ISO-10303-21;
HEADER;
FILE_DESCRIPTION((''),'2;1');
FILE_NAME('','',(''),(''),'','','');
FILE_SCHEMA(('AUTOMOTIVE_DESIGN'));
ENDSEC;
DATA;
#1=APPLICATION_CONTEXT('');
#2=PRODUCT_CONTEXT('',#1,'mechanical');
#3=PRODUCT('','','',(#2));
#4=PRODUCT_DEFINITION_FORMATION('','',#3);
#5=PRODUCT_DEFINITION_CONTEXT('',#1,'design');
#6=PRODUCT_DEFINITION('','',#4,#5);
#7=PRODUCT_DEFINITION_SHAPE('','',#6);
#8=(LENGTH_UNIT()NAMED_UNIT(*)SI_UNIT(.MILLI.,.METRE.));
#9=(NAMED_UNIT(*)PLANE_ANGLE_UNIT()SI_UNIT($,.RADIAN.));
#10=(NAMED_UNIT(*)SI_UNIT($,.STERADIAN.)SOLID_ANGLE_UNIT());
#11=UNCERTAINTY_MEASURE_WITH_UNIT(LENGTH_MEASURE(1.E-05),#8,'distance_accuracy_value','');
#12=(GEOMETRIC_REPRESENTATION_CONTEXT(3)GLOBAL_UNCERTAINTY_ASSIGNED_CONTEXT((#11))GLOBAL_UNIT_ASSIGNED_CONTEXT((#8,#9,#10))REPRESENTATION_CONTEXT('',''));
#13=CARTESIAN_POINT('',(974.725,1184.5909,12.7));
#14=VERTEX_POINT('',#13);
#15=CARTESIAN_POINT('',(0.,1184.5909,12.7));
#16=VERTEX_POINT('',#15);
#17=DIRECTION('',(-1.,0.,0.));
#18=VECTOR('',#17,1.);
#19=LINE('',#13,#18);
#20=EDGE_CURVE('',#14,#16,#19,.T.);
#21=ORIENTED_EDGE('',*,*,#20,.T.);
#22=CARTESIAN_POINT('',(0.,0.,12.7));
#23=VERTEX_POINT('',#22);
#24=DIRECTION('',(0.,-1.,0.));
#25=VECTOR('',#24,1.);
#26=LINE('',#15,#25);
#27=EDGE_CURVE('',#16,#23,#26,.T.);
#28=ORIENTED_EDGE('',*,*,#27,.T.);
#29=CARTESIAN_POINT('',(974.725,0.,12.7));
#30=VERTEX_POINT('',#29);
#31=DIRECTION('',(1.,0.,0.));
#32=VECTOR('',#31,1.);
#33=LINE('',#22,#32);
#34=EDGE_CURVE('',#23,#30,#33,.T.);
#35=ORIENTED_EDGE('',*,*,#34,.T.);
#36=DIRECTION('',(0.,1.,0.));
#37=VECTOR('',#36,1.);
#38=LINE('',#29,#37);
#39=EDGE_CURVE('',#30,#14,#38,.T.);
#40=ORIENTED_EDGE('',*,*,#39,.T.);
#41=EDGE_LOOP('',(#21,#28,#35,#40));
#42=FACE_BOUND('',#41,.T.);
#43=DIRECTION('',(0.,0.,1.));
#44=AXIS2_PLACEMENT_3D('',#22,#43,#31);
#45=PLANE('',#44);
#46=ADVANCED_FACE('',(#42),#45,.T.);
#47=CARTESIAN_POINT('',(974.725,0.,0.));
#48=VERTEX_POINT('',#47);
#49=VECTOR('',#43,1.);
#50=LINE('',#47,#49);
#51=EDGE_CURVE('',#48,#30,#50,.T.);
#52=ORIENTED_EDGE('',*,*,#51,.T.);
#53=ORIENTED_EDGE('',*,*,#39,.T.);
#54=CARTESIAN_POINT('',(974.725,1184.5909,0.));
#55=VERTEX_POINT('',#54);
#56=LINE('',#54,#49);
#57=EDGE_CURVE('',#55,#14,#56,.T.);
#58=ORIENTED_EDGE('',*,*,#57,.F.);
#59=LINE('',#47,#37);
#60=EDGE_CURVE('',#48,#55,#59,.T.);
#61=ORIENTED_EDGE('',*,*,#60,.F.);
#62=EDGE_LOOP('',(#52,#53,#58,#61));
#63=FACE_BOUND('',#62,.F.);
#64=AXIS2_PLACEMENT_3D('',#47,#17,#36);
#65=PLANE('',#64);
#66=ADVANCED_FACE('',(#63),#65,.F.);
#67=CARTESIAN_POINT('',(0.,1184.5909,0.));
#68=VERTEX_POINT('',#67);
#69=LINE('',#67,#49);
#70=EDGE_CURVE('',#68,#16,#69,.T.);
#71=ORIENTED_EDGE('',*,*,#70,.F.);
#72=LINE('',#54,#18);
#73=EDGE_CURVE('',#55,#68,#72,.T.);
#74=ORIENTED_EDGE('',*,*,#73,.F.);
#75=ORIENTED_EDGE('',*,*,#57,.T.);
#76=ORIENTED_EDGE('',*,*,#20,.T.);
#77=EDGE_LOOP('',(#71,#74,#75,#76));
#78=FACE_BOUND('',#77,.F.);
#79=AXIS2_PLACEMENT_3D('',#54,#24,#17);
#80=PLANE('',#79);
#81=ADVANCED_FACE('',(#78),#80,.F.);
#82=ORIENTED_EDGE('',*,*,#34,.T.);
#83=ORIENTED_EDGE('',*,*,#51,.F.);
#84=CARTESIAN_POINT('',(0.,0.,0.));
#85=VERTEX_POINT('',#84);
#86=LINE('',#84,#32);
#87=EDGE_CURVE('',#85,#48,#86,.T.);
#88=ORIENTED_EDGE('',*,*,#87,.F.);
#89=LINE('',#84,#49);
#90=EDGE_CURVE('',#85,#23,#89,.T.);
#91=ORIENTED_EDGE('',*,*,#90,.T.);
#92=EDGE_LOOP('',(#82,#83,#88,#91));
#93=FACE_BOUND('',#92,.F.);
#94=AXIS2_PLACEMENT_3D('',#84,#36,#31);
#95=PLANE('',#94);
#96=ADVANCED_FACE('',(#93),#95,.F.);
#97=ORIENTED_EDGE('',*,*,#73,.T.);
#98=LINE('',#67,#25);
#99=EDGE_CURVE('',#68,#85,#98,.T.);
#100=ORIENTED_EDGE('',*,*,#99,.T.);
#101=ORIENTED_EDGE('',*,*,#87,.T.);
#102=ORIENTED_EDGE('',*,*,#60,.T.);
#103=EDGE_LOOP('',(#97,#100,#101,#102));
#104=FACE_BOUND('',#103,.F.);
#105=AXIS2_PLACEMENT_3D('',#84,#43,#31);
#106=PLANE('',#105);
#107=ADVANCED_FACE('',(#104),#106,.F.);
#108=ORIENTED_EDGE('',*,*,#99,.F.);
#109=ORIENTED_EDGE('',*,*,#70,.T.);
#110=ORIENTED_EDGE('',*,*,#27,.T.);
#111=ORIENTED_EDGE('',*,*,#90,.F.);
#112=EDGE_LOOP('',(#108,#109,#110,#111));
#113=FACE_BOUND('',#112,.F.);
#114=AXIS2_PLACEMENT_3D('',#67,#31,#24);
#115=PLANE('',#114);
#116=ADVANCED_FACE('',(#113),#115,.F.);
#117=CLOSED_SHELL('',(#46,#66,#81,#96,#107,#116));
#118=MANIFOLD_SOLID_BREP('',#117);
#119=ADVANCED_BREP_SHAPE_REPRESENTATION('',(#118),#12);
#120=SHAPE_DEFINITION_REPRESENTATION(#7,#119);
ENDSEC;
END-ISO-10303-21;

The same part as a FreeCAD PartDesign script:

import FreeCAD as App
import Part
import Sketcher
from FreeCAD import Vector
Q = App.Units.Quantity

doc = App.newDocument("Part")
body = doc.addObject("PartDesign::Body", "Body")

# Sketch on XY plane
sketch1 = body.newObject("Sketcher::SketchObject", "Sketch")
sketch1.AttachmentSupport = (doc.getObject("XY_Plane"), [""])
sketch1.MapMode = "FlatFace"
sketch1.addGeometry([
    Part.LineSegment(Vector(0, 1185, 0), Vector(0, 0, 0)),
    Part.LineSegment(Vector(0, 0, 0), Vector(975, 0, 0)),
    Part.LineSegment(Vector(975, 0, 0), Vector(975, 1185, 0)),
    Part.LineSegment(Vector(975, 1185, 0), Vector(0, 1185, 0)),
], False)
sketch1.addConstraint([
    Sketcher.Constraint("Coincident", 0, 2, 1, 1),
    Sketcher.Constraint("Coincident", 1, 2, 2, 1),
    Sketcher.Constraint("Coincident", 2, 2, 3, 1),
    Sketcher.Constraint("Coincident", 3, 2, 0, 1),
    Sketcher.Constraint("Vertical", 0),
    Sketcher.Constraint("Horizontal", 1),
    Sketcher.Constraint("Vertical", 2),
    Sketcher.Constraint("Horizontal", 3),
    Sketcher.Constraint("Coincident", 0, 2, -1, 1),
    Sketcher.Constraint("DistanceX", 1, 1, 1, 2, Q("38.375 in")),
    Sketcher.Constraint("DistanceY", 0, 2, 0, 1, 1184.591),
])
pad1 = body.newObject("PartDesign::Pad", "Pad")
pad1.Profile = sketch1
pad1.Length = Q("0.5 in")

doc.recompute()
